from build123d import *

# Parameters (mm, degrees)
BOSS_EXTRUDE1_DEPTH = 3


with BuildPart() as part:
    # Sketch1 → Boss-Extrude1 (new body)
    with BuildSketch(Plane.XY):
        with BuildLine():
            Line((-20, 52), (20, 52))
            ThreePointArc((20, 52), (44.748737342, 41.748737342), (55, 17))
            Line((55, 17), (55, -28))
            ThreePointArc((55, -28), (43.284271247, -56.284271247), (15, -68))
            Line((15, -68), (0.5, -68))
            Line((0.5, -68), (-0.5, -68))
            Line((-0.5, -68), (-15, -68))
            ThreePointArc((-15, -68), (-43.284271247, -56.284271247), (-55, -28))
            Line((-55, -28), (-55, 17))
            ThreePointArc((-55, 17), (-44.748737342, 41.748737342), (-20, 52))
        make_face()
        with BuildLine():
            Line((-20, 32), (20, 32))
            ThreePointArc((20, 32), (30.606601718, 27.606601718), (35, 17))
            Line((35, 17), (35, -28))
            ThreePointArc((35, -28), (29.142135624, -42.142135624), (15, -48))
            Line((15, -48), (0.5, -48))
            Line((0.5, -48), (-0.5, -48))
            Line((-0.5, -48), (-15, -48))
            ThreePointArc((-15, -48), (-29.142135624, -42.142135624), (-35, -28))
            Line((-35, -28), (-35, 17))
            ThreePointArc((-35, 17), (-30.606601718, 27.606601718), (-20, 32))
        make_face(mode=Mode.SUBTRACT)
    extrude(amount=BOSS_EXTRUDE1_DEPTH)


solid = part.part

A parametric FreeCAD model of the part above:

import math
import FreeCAD as App
import Part
import Sketcher
Q = App.Units.Quantity

doc = App.newDocument("Part")
params = doc.addObject("Spreadsheet::Sheet", "Params")
for row, (alias, value) in enumerate([
    ("sketch1_radius", "35 mm"),
    ("sketch1_radius2", "40 mm"),
    ("sketch1_radius3", "15 mm"),
    ("sketch1_width", "40 mm"),
    ("sketch1_height", "45 mm"),
    ("pad1_length", "3 mm"),
], start=1):
    params.set(f"A{row}", alias)
    params.set(f"B{row}", "=" + value)
    params.setAlias(f"B{row}", alias)

body = doc.addObject("PartDesign::Body", "Body")

sketch1 = body.newObject("Sketcher::SketchObject", "Sketch")
sketch1.AttachmentSupport = (doc.getObject("XY_Plane"), [""])
sketch1.MapMode = "FlatFace"
sketch1.addGeometry([
    Part.LineSegment(App.Vector(20, 52, 0), App.Vector(-20, 52, 0)),
    Part.ArcOfCircle(Part.Circle(App.Vector(-20, 17, 0), App.Vector(0, 0, 1), 35), math.radians(90), math.radians(180)),
    Part.LineSegment(App.Vector(-55, 17, 0), App.Vector(-55, -28, 0)),
    Part.ArcOfCircle(Part.Circle(App.Vector(-15, -28, 0), App.Vector(0, 0, 1), 40), math.radians(-180), math.radians(-90)),
    Part.LineSegment(App.Vector(-15, -68, 0), App.Vector(15, -68, 0)),
    Part.ArcOfCircle(Part.Circle(App.Vector(15, -28, 0), App.Vector(0, 0, 1), 40), math.radians(-90), math.radians(0)),
    Part.LineSegment(App.Vector(55, -28, 0), App.Vector(55, 17, 0)),
    Part.ArcOfCircle(Part.Circle(App.Vector(20, 17, 0), App.Vector(0, 0, 1), 35), math.radians(0), math.radians(90)),
    Part.LineSegment(App.Vector(-20, 32, 0), App.Vector(20, 32, 0)),
    Part.ArcOfCircle(Part.Circle(App.Vector(20, 17, 0), App.Vector(0, 0, 1), 15), math.radians(0), math.radians(90)),
    Part.LineSegment(App.Vector(35, 17, 0), App.Vector(35, -28, 0)),
    Part.ArcOfCircle(Part.Circle(App.Vector(15, -28, 0), App.Vector(0, 0, 1), 20), math.radians(-90), math.radians(0)),
    Part.LineSegment(App.Vector(15, -48, 0), App.Vector(-15, -48, 0)),
    Part.ArcOfCircle(Part.Circle(App.Vector(-15, -28, 0), App.Vector(0, 0, 1), 20), math.radians(180), math.radians(270)),
    Part.LineSegment(App.Vector(-35, -28, 0), App.Vector(-35, 17, 0)),
    Part.ArcOfCircle(Part.Circle(App.Vector(-20, 17, 0), App.Vector(0, 0, 1), 15), math.radians(90), math.radians(180)),
], False)
sketch1.addConstraint([
    Sketcher.Constraint("Tangent", 0, 2, 1, 1),
    Sketcher.Constraint("Tangent", 1, 2, 2, 1),
    Sketcher.Constraint("Tangent", 2, 2, 3, 1),
    Sketcher.Constraint("Tangent", 3, 2, 4, 1),
    Sketcher.Constraint("Tangent", 4, 2, 5, 1),
    Sketcher.Constraint("Tangent", 5, 2, 6, 1),
    Sketcher.Constraint("Tangent", 6, 2, 7, 1),
    Sketcher.Constraint("Tangent", 7, 2, 0, 1),
    Sketcher.Constraint("Tangent", 8, 2, 9, 2),
    Sketcher.Constraint("Tangent", 9, 1, 10, 1),
    Sketcher.Constraint("Tangent", 10, 2, 11, 2),
    Sketcher.Constraint("Tangent", 11, 1, 12, 1),
    Sketcher.Constraint("Tangent", 12, 2, 13, 2),
    Sketcher.Constraint("Tangent", 13, 1, 14, 1),
    Sketcher.Constraint("Tangent", 14, 2, 15, 2),
    Sketcher.Constraint("Tangent", 15, 1, 8, 1),
    Sketcher.Constraint("Horizontal", 0),
    Sketcher.Constraint("Vertical", 2),
    Sketcher.Constraint("Horizontal", 4),
    Sketcher.Constraint("Vertical", 6),
    Sketcher.Constraint("Horizontal", 8),
    Sketcher.Constraint("Vertical", 10),
    Sketcher.Constraint("Horizontal", 12),
    Sketcher.Constraint("Vertical", 14),
    Sketcher.Constraint("Coincident", 9, 3, 7, 3),
    Sketcher.Constraint("Coincident", 11, 3, 5, 3),
    Sketcher.Constraint("Coincident", 13, 3, 3, 3),
    Sketcher.Constraint("Equal", 3, 5),
    Sketcher.Constraint("Equal", 1, 7),
    Sketcher.Constraint("Equal", 9, 15),
    Sketcher.Constraint("Radius", 1, Q("35 mm")),
    Sketcher.Constraint("Radius", 3, Q("40 mm")),
    Sketcher.Constraint("Radius", 9, Q("15 mm")),
    Sketcher.Constraint("DistanceX", 0, 2, 0, 1, Q("40 mm")),
    Sketcher.Constraint("DistanceY", 2, 2, 2, 1, Q("45 mm")),
    Sketcher.Constraint("DistanceX", 1, 3, -1, 1, Q("20 mm")),
    Sketcher.Constraint("DistanceY", -1, 1, 1, 3, Q("17 mm")),
])
sketch1.setExpression("Constraints[30]", "Params.sketch1_radius")
sketch1.setExpression("Constraints[31]", "Params.sketch1_radius2")
sketch1.setExpression("Constraints[32]", "Params.sketch1_radius3")
sketch1.setExpression("Constraints[33]", "Params.sketch1_width")
sketch1.setExpression("Constraints[34]", "Params.sketch1_height")
pad1 = body.newObject("PartDesign::Pad", "Pad")
pad1.Profile = sketch1
pad1.setExpression("Length", "Params.pad1_length")

doc.recompute()
